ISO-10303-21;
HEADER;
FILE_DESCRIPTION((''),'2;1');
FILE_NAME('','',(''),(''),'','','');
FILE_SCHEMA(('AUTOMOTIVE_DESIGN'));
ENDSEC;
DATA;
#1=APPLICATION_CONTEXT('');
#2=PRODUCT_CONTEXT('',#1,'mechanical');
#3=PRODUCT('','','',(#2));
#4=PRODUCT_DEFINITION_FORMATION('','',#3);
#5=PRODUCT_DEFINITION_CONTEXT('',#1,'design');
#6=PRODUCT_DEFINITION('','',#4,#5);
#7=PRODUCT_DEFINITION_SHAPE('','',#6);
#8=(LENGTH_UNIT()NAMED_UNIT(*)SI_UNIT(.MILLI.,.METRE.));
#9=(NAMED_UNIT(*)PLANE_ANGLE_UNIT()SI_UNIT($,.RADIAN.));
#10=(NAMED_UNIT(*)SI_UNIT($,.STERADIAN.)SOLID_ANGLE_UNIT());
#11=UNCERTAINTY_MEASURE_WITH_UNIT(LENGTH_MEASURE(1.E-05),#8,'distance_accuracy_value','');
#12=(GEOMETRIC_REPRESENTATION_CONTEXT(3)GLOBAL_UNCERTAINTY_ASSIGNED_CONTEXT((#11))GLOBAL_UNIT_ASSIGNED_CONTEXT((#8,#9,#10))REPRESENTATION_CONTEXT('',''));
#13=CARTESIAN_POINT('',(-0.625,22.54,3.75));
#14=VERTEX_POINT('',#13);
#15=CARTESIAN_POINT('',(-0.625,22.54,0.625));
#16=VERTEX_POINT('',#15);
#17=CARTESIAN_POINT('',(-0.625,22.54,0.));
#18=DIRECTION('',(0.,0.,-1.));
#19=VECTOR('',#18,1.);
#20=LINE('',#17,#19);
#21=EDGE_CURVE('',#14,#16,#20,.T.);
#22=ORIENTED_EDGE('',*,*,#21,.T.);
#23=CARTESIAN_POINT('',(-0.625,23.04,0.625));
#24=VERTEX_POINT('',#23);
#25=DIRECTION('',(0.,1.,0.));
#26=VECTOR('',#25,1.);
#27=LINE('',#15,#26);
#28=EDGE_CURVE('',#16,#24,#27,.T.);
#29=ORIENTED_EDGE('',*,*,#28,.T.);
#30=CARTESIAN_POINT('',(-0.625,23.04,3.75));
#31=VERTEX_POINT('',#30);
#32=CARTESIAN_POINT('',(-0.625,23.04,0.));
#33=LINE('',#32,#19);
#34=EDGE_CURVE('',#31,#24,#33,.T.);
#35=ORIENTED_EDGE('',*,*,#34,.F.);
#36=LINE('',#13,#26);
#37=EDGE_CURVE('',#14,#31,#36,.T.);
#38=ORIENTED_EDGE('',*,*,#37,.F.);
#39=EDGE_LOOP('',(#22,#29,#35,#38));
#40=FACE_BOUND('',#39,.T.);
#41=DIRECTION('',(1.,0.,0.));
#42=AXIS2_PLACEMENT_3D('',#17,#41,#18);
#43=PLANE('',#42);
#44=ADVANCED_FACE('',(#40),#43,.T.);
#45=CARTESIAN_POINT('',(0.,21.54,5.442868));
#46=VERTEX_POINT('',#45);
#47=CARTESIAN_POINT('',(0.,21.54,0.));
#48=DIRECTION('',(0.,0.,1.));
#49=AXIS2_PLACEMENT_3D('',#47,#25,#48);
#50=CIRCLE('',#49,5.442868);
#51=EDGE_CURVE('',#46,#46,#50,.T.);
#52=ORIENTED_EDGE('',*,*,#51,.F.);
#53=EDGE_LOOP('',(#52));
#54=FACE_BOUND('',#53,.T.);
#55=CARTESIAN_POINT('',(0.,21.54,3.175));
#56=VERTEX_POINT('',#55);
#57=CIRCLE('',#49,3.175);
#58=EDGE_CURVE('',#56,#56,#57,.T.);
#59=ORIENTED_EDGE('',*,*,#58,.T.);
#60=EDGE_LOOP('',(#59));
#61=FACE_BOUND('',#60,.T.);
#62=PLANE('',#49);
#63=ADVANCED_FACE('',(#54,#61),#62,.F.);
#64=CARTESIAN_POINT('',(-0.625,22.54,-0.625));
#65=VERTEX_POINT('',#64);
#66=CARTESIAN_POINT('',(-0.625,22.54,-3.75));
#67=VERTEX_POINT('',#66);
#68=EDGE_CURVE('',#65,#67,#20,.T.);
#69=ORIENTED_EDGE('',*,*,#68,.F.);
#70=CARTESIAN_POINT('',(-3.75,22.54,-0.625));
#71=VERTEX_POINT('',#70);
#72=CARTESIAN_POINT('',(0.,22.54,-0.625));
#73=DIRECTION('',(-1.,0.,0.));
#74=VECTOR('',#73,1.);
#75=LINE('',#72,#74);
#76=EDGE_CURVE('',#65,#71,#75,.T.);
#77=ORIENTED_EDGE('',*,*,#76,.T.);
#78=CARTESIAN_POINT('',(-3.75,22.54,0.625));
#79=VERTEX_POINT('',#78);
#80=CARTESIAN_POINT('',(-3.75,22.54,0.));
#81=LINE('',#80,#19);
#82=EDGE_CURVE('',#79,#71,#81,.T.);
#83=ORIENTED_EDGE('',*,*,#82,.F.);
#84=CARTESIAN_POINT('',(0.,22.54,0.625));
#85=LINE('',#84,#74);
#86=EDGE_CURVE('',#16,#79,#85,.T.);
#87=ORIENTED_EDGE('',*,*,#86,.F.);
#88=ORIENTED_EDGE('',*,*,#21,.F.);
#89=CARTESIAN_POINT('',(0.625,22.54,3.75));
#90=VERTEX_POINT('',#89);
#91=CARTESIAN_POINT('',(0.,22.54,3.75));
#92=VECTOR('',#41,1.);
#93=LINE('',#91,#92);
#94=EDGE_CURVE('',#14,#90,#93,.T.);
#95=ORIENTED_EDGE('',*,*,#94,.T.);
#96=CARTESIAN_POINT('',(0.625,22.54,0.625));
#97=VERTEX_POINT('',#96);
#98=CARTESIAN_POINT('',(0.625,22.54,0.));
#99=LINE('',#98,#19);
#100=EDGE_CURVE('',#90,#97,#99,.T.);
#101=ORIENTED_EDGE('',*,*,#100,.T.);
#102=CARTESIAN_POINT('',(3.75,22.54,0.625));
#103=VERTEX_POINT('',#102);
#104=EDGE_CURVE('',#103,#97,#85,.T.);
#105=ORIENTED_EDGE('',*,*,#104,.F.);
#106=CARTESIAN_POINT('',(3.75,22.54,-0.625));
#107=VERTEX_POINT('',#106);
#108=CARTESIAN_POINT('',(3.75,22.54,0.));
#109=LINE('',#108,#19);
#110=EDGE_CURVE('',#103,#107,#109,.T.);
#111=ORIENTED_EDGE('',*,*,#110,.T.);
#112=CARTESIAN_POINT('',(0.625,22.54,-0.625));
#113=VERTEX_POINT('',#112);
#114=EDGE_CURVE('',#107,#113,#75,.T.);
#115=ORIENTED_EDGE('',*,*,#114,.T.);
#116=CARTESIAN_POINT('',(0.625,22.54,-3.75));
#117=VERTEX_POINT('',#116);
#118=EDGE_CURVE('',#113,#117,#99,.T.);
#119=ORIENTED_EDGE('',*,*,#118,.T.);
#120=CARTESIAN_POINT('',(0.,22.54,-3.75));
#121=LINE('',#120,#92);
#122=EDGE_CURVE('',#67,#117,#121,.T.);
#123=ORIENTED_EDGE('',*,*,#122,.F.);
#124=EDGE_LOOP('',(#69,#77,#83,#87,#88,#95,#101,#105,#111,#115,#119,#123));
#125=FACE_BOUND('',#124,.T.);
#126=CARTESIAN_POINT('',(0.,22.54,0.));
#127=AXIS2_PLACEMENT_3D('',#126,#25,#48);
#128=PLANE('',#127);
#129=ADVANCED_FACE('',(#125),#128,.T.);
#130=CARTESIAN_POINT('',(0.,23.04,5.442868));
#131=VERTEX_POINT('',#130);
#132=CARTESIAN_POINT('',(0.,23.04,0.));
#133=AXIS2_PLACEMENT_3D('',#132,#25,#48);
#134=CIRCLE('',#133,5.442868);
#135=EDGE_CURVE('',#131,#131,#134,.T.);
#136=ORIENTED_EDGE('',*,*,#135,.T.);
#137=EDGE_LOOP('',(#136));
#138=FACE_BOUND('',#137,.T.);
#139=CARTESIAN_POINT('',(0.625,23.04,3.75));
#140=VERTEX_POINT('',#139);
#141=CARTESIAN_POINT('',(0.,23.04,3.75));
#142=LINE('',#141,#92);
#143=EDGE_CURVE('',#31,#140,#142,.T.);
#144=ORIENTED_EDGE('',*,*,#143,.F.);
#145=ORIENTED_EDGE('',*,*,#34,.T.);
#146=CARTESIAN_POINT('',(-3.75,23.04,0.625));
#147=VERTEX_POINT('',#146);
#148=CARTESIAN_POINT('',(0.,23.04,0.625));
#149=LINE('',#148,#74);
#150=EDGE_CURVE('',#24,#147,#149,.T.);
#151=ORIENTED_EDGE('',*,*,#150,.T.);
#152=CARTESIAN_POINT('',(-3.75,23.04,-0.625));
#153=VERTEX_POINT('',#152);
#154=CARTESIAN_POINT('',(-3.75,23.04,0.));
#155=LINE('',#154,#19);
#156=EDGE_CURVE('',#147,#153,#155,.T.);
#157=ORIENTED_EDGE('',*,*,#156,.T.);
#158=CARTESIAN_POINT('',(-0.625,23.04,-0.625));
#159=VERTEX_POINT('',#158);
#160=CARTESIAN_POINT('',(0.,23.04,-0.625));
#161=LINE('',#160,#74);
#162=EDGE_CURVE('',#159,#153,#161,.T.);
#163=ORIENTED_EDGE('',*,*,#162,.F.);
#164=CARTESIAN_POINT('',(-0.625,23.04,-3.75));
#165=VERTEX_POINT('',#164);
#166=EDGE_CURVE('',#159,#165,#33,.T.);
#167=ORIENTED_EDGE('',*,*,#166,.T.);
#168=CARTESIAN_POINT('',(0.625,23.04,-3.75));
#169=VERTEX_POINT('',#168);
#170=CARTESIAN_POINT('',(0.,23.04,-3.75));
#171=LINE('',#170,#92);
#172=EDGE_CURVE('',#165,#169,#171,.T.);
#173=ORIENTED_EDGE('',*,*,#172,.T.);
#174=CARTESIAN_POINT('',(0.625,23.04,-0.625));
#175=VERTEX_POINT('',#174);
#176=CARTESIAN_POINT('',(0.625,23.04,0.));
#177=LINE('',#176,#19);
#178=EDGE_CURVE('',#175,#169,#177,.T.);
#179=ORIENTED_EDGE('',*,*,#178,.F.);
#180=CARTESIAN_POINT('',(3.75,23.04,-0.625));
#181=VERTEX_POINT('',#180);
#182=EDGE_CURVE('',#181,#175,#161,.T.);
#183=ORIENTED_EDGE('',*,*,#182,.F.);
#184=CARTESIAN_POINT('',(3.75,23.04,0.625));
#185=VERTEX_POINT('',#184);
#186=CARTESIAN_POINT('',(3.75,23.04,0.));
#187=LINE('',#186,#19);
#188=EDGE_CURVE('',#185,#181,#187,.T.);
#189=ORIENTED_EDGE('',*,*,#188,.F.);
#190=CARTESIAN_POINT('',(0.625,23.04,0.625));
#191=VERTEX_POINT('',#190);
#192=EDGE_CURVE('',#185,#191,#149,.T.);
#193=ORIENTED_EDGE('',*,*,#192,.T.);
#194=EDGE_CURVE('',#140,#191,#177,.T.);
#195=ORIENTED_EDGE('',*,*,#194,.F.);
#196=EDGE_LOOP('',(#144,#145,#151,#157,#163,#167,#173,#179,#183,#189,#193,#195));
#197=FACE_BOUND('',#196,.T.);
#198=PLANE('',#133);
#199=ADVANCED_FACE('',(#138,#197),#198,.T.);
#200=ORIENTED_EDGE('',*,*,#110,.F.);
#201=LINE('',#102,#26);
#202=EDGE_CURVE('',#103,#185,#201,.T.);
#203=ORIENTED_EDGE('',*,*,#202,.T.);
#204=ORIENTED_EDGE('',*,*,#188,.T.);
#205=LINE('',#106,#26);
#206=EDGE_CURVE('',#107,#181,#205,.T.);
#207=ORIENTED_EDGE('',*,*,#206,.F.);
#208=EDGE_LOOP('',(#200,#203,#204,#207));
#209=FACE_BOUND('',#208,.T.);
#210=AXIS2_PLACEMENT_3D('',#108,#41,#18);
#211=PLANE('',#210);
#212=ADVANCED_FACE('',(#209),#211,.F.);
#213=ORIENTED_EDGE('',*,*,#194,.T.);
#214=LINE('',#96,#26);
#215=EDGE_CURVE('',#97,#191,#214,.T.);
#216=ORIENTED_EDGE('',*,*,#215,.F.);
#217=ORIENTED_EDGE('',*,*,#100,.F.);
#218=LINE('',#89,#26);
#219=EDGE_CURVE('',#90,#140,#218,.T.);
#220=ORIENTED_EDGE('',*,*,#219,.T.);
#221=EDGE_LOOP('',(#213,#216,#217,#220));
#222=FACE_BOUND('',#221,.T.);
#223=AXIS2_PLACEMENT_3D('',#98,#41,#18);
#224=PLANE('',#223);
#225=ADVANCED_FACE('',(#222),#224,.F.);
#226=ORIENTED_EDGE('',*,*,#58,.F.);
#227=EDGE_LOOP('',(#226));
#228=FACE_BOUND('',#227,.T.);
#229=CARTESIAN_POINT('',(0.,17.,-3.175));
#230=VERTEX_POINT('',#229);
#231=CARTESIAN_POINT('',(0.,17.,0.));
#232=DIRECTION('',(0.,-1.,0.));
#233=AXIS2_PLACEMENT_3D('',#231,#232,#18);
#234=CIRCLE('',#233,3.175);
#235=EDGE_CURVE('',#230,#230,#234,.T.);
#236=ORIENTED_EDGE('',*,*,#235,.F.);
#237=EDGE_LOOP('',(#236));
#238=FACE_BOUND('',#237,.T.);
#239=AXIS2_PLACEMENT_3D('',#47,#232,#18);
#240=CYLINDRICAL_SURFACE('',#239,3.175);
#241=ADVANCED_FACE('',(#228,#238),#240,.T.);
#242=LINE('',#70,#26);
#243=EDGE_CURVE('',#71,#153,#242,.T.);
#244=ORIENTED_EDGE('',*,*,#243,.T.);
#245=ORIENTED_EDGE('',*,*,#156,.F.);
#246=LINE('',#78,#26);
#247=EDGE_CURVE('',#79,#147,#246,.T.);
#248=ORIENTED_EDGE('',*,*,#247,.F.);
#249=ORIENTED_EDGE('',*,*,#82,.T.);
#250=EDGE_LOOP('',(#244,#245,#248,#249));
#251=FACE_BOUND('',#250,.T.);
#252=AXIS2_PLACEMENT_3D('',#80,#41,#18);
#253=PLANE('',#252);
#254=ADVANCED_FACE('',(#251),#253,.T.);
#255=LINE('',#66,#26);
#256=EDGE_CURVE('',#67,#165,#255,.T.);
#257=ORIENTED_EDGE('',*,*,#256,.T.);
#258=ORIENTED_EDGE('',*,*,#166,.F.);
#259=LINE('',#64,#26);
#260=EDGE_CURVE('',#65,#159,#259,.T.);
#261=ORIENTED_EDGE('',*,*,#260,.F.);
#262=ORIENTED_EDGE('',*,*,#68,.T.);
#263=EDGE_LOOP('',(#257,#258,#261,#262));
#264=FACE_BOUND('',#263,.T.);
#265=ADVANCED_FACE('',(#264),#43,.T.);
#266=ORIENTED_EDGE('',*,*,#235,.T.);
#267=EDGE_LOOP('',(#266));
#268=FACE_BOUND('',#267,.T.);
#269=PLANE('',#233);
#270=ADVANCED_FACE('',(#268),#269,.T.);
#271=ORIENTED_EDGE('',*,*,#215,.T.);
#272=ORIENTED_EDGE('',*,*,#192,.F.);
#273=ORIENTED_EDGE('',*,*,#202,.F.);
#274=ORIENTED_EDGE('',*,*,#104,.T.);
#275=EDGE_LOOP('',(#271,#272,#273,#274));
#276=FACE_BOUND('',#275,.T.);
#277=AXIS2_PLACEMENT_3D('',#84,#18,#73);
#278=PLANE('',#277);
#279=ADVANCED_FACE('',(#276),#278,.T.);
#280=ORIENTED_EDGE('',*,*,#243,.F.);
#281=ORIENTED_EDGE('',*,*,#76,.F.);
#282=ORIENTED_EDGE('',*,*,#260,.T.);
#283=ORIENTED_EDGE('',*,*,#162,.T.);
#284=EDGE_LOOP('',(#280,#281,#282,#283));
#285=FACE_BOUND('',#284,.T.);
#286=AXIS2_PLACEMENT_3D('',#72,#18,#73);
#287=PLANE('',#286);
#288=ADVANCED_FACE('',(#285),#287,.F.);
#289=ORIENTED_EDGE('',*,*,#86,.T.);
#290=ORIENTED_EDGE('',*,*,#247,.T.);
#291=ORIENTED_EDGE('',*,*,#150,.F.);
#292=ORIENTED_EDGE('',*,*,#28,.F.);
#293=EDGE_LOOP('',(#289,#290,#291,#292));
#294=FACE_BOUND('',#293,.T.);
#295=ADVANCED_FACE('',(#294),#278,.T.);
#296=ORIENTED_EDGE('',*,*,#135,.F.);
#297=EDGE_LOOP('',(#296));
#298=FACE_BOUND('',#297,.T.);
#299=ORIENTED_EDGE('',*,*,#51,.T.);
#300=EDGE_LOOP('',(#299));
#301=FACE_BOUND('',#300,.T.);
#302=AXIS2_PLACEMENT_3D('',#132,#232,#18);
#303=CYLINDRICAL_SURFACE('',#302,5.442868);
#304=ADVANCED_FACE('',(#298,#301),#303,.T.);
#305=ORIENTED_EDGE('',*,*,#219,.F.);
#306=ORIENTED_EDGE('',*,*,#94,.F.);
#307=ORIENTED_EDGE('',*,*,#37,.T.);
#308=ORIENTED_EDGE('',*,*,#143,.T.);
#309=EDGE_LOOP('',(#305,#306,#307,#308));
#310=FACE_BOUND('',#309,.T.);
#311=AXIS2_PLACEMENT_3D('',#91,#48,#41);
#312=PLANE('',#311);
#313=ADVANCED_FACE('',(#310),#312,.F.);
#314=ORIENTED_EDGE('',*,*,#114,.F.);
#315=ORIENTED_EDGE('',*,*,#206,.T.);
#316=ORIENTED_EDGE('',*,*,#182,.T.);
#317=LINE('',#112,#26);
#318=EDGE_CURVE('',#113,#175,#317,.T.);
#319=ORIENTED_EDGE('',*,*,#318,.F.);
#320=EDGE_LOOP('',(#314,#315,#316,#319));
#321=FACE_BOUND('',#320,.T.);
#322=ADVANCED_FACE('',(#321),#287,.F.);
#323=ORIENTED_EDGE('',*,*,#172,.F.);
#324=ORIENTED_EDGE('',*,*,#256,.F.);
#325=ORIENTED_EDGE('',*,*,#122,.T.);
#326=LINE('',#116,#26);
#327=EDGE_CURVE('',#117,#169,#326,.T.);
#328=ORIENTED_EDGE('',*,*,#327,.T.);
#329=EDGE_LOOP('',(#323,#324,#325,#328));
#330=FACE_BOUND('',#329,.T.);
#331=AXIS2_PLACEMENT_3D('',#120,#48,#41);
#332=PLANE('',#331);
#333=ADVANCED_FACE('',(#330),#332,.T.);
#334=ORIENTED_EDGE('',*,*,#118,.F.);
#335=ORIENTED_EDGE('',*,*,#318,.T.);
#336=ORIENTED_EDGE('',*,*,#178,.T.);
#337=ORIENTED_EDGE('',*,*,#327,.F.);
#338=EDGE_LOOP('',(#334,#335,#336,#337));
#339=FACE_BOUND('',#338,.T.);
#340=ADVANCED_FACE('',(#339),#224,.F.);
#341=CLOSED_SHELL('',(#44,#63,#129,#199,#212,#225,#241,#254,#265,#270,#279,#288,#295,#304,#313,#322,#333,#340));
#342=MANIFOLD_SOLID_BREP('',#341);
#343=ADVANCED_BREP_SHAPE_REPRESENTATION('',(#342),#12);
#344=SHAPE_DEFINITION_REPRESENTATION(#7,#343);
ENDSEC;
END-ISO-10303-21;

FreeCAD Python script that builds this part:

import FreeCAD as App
import Part
import Sketcher

V = App.Vector
Q = App.Units.Quantity


def add_polygon(sketch, points):
    """Adds a closed chain of lines whose ends are joined by coincident constraints."""
    first, n = sketch.GeometryCount, len(points)
    for a, b in zip(points, points[1:] + points[:1]):
        sketch.addGeometry(Part.LineSegment(App.Vector(*a, 0), App.Vector(*b, 0)), False)
    for i in range(n):
        sketch.addConstraint(Sketcher.Constraint("Coincident", first + i, 2, first + (i + 1) % n, 1))

doc = App.newDocument("Part")
body = doc.addObject("PartDesign::Body", "Body")

sketch1 = body.newObject("Sketcher::SketchObject", "Sketch")
sketch1.AttachmentSupport = (doc.getObject("XZ_Plane"), [""])
sketch1.MapMode = "FlatFace"
sketch1.addGeometry(Part.Circle(V(0, 0, 0), V(0, 0, 1), 3.2), False)
sketch1.addConstraint([
    Sketcher.Constraint("Coincident", 0, 3, -1, 1),
    Sketcher.Constraint("Diameter", 0, Q("6.35 mm")),
])
pad1 = body.newObject("PartDesign::Pad", "Pad")
pad1.Profile = sketch1
pad1.Length = 21.54
pad1.Reversed = True

sketch2 = body.newObject("Sketcher::SketchObject", "Sketch001")
sketch2.AttachmentSupport = (doc.getObject("XZ_Plane"), [""])
sketch2.MapMode = "FlatFace"
sketch2.AttachmentOffset = App.Placement(V(0, 0, -21.54), App.Rotation())
sketch2.addGeometry(Part.Circle(V(0, 0, 0), V(0, 0, 1), 5), False)
sketch2.addConstraint([
    Sketcher.Constraint("Coincident", 0, 3, -1, 1),
    Sketcher.Constraint("Diameter", 0, Q("10.885736 mm")),
])
pad2 = body.newObject("PartDesign::Pad", "Pad001")
pad2.Profile = sketch2
pad2.Length = 1.5
pad2.Reversed = True

sketch3 = body.newObject("Sketcher::SketchObject", "Sketch002")
sketch3.AttachmentSupport = (doc.getObject("XZ_Plane"), [""])
sketch3.MapMode = "FlatFace"
sketch3.AttachmentOffset = App.Placement(V(0, 0, -23.04), App.Rotation())
add_polygon(sketch3, [(-0.6, 0.6), (-0.6, 3.8), (0.6, 3.8), (0.6, 0.6), (3.8, 0.6), (3.8, -0.6), (0.6, -0.6), (0.6, -3.8), (-0.6, -3.8), (-0.6, -0.6), (-3.8, -0.6), (-3.8, 0.6)])
sketch3.addConstraint([
    Sketcher.Constraint("Vertical", 0),
    Sketcher.Constraint("Horizontal", 1),
    Sketcher.Constraint("Vertical", 2),
    Sketcher.Constraint("Horizontal", 3),
    Sketcher.Constraint("Vertical", 4),
    Sketcher.Constraint("Horizontal", 5),
    Sketcher.Constraint("Vertical", 6),
    Sketcher.Constraint("Horizontal", 7),
    Sketcher.Constraint("Vertical", 8),
    Sketcher.Constraint("Horizontal", 9),
    Sketcher.Constraint("Vertical", 10),
    Sketcher.Constraint("Horizontal", 11),
    Sketcher.Constraint("Symmetric", 0, 2, 6, 2, -1, 1),
    Sketcher.Constraint("Symmetric", 2, 2, 8, 2, -1, 1),
    Sketcher.Constraint("Symmetric", 4, 2, 10, 2, -1, 1),
    Sketcher.Constraint("Symmetric", 5, 2, 8, 2, -2),
    Sketcher.Constraint("Equal", 11, 0),
    Sketcher.Constraint("Equal", 7, 4),
    Sketcher.Constraint("DistanceX", 1, 1, 1, 2, Q("1.25 mm")),
    Sketcher.Constraint("DistanceY", 6, 2, 1, 2, Q("7.5 mm")),
])
pocket1 = body.newObject("PartDesign::Pocket", "Pocket")
pocket1.Profile = sketch3
pocket1.Length = 0.5
pocket1.Reversed = True

sketch4 = body.newObject("Sketcher::SketchObject", "Sketch003")
sketch4.AttachmentSupport = (doc.getObject("XZ_Plane"), [""])
sketch4.MapMode = "FlatFace"
sketch4.addGeometry(Part.Circle(V(0, 0, 0), V(0, 0, 1), 3.2), False)
sketch4.addConstraint([
    Sketcher.Constraint("Coincident", 0, 3, -1, 1),
    Sketcher.Constraint("Diameter", 0, Q("6.35 mm")),
])
pocket2 = body.newObject("PartDesign::Pocket", "Pocket001")
pocket2.Profile = sketch4
pocket2.Length = 17

doc.recompute()
